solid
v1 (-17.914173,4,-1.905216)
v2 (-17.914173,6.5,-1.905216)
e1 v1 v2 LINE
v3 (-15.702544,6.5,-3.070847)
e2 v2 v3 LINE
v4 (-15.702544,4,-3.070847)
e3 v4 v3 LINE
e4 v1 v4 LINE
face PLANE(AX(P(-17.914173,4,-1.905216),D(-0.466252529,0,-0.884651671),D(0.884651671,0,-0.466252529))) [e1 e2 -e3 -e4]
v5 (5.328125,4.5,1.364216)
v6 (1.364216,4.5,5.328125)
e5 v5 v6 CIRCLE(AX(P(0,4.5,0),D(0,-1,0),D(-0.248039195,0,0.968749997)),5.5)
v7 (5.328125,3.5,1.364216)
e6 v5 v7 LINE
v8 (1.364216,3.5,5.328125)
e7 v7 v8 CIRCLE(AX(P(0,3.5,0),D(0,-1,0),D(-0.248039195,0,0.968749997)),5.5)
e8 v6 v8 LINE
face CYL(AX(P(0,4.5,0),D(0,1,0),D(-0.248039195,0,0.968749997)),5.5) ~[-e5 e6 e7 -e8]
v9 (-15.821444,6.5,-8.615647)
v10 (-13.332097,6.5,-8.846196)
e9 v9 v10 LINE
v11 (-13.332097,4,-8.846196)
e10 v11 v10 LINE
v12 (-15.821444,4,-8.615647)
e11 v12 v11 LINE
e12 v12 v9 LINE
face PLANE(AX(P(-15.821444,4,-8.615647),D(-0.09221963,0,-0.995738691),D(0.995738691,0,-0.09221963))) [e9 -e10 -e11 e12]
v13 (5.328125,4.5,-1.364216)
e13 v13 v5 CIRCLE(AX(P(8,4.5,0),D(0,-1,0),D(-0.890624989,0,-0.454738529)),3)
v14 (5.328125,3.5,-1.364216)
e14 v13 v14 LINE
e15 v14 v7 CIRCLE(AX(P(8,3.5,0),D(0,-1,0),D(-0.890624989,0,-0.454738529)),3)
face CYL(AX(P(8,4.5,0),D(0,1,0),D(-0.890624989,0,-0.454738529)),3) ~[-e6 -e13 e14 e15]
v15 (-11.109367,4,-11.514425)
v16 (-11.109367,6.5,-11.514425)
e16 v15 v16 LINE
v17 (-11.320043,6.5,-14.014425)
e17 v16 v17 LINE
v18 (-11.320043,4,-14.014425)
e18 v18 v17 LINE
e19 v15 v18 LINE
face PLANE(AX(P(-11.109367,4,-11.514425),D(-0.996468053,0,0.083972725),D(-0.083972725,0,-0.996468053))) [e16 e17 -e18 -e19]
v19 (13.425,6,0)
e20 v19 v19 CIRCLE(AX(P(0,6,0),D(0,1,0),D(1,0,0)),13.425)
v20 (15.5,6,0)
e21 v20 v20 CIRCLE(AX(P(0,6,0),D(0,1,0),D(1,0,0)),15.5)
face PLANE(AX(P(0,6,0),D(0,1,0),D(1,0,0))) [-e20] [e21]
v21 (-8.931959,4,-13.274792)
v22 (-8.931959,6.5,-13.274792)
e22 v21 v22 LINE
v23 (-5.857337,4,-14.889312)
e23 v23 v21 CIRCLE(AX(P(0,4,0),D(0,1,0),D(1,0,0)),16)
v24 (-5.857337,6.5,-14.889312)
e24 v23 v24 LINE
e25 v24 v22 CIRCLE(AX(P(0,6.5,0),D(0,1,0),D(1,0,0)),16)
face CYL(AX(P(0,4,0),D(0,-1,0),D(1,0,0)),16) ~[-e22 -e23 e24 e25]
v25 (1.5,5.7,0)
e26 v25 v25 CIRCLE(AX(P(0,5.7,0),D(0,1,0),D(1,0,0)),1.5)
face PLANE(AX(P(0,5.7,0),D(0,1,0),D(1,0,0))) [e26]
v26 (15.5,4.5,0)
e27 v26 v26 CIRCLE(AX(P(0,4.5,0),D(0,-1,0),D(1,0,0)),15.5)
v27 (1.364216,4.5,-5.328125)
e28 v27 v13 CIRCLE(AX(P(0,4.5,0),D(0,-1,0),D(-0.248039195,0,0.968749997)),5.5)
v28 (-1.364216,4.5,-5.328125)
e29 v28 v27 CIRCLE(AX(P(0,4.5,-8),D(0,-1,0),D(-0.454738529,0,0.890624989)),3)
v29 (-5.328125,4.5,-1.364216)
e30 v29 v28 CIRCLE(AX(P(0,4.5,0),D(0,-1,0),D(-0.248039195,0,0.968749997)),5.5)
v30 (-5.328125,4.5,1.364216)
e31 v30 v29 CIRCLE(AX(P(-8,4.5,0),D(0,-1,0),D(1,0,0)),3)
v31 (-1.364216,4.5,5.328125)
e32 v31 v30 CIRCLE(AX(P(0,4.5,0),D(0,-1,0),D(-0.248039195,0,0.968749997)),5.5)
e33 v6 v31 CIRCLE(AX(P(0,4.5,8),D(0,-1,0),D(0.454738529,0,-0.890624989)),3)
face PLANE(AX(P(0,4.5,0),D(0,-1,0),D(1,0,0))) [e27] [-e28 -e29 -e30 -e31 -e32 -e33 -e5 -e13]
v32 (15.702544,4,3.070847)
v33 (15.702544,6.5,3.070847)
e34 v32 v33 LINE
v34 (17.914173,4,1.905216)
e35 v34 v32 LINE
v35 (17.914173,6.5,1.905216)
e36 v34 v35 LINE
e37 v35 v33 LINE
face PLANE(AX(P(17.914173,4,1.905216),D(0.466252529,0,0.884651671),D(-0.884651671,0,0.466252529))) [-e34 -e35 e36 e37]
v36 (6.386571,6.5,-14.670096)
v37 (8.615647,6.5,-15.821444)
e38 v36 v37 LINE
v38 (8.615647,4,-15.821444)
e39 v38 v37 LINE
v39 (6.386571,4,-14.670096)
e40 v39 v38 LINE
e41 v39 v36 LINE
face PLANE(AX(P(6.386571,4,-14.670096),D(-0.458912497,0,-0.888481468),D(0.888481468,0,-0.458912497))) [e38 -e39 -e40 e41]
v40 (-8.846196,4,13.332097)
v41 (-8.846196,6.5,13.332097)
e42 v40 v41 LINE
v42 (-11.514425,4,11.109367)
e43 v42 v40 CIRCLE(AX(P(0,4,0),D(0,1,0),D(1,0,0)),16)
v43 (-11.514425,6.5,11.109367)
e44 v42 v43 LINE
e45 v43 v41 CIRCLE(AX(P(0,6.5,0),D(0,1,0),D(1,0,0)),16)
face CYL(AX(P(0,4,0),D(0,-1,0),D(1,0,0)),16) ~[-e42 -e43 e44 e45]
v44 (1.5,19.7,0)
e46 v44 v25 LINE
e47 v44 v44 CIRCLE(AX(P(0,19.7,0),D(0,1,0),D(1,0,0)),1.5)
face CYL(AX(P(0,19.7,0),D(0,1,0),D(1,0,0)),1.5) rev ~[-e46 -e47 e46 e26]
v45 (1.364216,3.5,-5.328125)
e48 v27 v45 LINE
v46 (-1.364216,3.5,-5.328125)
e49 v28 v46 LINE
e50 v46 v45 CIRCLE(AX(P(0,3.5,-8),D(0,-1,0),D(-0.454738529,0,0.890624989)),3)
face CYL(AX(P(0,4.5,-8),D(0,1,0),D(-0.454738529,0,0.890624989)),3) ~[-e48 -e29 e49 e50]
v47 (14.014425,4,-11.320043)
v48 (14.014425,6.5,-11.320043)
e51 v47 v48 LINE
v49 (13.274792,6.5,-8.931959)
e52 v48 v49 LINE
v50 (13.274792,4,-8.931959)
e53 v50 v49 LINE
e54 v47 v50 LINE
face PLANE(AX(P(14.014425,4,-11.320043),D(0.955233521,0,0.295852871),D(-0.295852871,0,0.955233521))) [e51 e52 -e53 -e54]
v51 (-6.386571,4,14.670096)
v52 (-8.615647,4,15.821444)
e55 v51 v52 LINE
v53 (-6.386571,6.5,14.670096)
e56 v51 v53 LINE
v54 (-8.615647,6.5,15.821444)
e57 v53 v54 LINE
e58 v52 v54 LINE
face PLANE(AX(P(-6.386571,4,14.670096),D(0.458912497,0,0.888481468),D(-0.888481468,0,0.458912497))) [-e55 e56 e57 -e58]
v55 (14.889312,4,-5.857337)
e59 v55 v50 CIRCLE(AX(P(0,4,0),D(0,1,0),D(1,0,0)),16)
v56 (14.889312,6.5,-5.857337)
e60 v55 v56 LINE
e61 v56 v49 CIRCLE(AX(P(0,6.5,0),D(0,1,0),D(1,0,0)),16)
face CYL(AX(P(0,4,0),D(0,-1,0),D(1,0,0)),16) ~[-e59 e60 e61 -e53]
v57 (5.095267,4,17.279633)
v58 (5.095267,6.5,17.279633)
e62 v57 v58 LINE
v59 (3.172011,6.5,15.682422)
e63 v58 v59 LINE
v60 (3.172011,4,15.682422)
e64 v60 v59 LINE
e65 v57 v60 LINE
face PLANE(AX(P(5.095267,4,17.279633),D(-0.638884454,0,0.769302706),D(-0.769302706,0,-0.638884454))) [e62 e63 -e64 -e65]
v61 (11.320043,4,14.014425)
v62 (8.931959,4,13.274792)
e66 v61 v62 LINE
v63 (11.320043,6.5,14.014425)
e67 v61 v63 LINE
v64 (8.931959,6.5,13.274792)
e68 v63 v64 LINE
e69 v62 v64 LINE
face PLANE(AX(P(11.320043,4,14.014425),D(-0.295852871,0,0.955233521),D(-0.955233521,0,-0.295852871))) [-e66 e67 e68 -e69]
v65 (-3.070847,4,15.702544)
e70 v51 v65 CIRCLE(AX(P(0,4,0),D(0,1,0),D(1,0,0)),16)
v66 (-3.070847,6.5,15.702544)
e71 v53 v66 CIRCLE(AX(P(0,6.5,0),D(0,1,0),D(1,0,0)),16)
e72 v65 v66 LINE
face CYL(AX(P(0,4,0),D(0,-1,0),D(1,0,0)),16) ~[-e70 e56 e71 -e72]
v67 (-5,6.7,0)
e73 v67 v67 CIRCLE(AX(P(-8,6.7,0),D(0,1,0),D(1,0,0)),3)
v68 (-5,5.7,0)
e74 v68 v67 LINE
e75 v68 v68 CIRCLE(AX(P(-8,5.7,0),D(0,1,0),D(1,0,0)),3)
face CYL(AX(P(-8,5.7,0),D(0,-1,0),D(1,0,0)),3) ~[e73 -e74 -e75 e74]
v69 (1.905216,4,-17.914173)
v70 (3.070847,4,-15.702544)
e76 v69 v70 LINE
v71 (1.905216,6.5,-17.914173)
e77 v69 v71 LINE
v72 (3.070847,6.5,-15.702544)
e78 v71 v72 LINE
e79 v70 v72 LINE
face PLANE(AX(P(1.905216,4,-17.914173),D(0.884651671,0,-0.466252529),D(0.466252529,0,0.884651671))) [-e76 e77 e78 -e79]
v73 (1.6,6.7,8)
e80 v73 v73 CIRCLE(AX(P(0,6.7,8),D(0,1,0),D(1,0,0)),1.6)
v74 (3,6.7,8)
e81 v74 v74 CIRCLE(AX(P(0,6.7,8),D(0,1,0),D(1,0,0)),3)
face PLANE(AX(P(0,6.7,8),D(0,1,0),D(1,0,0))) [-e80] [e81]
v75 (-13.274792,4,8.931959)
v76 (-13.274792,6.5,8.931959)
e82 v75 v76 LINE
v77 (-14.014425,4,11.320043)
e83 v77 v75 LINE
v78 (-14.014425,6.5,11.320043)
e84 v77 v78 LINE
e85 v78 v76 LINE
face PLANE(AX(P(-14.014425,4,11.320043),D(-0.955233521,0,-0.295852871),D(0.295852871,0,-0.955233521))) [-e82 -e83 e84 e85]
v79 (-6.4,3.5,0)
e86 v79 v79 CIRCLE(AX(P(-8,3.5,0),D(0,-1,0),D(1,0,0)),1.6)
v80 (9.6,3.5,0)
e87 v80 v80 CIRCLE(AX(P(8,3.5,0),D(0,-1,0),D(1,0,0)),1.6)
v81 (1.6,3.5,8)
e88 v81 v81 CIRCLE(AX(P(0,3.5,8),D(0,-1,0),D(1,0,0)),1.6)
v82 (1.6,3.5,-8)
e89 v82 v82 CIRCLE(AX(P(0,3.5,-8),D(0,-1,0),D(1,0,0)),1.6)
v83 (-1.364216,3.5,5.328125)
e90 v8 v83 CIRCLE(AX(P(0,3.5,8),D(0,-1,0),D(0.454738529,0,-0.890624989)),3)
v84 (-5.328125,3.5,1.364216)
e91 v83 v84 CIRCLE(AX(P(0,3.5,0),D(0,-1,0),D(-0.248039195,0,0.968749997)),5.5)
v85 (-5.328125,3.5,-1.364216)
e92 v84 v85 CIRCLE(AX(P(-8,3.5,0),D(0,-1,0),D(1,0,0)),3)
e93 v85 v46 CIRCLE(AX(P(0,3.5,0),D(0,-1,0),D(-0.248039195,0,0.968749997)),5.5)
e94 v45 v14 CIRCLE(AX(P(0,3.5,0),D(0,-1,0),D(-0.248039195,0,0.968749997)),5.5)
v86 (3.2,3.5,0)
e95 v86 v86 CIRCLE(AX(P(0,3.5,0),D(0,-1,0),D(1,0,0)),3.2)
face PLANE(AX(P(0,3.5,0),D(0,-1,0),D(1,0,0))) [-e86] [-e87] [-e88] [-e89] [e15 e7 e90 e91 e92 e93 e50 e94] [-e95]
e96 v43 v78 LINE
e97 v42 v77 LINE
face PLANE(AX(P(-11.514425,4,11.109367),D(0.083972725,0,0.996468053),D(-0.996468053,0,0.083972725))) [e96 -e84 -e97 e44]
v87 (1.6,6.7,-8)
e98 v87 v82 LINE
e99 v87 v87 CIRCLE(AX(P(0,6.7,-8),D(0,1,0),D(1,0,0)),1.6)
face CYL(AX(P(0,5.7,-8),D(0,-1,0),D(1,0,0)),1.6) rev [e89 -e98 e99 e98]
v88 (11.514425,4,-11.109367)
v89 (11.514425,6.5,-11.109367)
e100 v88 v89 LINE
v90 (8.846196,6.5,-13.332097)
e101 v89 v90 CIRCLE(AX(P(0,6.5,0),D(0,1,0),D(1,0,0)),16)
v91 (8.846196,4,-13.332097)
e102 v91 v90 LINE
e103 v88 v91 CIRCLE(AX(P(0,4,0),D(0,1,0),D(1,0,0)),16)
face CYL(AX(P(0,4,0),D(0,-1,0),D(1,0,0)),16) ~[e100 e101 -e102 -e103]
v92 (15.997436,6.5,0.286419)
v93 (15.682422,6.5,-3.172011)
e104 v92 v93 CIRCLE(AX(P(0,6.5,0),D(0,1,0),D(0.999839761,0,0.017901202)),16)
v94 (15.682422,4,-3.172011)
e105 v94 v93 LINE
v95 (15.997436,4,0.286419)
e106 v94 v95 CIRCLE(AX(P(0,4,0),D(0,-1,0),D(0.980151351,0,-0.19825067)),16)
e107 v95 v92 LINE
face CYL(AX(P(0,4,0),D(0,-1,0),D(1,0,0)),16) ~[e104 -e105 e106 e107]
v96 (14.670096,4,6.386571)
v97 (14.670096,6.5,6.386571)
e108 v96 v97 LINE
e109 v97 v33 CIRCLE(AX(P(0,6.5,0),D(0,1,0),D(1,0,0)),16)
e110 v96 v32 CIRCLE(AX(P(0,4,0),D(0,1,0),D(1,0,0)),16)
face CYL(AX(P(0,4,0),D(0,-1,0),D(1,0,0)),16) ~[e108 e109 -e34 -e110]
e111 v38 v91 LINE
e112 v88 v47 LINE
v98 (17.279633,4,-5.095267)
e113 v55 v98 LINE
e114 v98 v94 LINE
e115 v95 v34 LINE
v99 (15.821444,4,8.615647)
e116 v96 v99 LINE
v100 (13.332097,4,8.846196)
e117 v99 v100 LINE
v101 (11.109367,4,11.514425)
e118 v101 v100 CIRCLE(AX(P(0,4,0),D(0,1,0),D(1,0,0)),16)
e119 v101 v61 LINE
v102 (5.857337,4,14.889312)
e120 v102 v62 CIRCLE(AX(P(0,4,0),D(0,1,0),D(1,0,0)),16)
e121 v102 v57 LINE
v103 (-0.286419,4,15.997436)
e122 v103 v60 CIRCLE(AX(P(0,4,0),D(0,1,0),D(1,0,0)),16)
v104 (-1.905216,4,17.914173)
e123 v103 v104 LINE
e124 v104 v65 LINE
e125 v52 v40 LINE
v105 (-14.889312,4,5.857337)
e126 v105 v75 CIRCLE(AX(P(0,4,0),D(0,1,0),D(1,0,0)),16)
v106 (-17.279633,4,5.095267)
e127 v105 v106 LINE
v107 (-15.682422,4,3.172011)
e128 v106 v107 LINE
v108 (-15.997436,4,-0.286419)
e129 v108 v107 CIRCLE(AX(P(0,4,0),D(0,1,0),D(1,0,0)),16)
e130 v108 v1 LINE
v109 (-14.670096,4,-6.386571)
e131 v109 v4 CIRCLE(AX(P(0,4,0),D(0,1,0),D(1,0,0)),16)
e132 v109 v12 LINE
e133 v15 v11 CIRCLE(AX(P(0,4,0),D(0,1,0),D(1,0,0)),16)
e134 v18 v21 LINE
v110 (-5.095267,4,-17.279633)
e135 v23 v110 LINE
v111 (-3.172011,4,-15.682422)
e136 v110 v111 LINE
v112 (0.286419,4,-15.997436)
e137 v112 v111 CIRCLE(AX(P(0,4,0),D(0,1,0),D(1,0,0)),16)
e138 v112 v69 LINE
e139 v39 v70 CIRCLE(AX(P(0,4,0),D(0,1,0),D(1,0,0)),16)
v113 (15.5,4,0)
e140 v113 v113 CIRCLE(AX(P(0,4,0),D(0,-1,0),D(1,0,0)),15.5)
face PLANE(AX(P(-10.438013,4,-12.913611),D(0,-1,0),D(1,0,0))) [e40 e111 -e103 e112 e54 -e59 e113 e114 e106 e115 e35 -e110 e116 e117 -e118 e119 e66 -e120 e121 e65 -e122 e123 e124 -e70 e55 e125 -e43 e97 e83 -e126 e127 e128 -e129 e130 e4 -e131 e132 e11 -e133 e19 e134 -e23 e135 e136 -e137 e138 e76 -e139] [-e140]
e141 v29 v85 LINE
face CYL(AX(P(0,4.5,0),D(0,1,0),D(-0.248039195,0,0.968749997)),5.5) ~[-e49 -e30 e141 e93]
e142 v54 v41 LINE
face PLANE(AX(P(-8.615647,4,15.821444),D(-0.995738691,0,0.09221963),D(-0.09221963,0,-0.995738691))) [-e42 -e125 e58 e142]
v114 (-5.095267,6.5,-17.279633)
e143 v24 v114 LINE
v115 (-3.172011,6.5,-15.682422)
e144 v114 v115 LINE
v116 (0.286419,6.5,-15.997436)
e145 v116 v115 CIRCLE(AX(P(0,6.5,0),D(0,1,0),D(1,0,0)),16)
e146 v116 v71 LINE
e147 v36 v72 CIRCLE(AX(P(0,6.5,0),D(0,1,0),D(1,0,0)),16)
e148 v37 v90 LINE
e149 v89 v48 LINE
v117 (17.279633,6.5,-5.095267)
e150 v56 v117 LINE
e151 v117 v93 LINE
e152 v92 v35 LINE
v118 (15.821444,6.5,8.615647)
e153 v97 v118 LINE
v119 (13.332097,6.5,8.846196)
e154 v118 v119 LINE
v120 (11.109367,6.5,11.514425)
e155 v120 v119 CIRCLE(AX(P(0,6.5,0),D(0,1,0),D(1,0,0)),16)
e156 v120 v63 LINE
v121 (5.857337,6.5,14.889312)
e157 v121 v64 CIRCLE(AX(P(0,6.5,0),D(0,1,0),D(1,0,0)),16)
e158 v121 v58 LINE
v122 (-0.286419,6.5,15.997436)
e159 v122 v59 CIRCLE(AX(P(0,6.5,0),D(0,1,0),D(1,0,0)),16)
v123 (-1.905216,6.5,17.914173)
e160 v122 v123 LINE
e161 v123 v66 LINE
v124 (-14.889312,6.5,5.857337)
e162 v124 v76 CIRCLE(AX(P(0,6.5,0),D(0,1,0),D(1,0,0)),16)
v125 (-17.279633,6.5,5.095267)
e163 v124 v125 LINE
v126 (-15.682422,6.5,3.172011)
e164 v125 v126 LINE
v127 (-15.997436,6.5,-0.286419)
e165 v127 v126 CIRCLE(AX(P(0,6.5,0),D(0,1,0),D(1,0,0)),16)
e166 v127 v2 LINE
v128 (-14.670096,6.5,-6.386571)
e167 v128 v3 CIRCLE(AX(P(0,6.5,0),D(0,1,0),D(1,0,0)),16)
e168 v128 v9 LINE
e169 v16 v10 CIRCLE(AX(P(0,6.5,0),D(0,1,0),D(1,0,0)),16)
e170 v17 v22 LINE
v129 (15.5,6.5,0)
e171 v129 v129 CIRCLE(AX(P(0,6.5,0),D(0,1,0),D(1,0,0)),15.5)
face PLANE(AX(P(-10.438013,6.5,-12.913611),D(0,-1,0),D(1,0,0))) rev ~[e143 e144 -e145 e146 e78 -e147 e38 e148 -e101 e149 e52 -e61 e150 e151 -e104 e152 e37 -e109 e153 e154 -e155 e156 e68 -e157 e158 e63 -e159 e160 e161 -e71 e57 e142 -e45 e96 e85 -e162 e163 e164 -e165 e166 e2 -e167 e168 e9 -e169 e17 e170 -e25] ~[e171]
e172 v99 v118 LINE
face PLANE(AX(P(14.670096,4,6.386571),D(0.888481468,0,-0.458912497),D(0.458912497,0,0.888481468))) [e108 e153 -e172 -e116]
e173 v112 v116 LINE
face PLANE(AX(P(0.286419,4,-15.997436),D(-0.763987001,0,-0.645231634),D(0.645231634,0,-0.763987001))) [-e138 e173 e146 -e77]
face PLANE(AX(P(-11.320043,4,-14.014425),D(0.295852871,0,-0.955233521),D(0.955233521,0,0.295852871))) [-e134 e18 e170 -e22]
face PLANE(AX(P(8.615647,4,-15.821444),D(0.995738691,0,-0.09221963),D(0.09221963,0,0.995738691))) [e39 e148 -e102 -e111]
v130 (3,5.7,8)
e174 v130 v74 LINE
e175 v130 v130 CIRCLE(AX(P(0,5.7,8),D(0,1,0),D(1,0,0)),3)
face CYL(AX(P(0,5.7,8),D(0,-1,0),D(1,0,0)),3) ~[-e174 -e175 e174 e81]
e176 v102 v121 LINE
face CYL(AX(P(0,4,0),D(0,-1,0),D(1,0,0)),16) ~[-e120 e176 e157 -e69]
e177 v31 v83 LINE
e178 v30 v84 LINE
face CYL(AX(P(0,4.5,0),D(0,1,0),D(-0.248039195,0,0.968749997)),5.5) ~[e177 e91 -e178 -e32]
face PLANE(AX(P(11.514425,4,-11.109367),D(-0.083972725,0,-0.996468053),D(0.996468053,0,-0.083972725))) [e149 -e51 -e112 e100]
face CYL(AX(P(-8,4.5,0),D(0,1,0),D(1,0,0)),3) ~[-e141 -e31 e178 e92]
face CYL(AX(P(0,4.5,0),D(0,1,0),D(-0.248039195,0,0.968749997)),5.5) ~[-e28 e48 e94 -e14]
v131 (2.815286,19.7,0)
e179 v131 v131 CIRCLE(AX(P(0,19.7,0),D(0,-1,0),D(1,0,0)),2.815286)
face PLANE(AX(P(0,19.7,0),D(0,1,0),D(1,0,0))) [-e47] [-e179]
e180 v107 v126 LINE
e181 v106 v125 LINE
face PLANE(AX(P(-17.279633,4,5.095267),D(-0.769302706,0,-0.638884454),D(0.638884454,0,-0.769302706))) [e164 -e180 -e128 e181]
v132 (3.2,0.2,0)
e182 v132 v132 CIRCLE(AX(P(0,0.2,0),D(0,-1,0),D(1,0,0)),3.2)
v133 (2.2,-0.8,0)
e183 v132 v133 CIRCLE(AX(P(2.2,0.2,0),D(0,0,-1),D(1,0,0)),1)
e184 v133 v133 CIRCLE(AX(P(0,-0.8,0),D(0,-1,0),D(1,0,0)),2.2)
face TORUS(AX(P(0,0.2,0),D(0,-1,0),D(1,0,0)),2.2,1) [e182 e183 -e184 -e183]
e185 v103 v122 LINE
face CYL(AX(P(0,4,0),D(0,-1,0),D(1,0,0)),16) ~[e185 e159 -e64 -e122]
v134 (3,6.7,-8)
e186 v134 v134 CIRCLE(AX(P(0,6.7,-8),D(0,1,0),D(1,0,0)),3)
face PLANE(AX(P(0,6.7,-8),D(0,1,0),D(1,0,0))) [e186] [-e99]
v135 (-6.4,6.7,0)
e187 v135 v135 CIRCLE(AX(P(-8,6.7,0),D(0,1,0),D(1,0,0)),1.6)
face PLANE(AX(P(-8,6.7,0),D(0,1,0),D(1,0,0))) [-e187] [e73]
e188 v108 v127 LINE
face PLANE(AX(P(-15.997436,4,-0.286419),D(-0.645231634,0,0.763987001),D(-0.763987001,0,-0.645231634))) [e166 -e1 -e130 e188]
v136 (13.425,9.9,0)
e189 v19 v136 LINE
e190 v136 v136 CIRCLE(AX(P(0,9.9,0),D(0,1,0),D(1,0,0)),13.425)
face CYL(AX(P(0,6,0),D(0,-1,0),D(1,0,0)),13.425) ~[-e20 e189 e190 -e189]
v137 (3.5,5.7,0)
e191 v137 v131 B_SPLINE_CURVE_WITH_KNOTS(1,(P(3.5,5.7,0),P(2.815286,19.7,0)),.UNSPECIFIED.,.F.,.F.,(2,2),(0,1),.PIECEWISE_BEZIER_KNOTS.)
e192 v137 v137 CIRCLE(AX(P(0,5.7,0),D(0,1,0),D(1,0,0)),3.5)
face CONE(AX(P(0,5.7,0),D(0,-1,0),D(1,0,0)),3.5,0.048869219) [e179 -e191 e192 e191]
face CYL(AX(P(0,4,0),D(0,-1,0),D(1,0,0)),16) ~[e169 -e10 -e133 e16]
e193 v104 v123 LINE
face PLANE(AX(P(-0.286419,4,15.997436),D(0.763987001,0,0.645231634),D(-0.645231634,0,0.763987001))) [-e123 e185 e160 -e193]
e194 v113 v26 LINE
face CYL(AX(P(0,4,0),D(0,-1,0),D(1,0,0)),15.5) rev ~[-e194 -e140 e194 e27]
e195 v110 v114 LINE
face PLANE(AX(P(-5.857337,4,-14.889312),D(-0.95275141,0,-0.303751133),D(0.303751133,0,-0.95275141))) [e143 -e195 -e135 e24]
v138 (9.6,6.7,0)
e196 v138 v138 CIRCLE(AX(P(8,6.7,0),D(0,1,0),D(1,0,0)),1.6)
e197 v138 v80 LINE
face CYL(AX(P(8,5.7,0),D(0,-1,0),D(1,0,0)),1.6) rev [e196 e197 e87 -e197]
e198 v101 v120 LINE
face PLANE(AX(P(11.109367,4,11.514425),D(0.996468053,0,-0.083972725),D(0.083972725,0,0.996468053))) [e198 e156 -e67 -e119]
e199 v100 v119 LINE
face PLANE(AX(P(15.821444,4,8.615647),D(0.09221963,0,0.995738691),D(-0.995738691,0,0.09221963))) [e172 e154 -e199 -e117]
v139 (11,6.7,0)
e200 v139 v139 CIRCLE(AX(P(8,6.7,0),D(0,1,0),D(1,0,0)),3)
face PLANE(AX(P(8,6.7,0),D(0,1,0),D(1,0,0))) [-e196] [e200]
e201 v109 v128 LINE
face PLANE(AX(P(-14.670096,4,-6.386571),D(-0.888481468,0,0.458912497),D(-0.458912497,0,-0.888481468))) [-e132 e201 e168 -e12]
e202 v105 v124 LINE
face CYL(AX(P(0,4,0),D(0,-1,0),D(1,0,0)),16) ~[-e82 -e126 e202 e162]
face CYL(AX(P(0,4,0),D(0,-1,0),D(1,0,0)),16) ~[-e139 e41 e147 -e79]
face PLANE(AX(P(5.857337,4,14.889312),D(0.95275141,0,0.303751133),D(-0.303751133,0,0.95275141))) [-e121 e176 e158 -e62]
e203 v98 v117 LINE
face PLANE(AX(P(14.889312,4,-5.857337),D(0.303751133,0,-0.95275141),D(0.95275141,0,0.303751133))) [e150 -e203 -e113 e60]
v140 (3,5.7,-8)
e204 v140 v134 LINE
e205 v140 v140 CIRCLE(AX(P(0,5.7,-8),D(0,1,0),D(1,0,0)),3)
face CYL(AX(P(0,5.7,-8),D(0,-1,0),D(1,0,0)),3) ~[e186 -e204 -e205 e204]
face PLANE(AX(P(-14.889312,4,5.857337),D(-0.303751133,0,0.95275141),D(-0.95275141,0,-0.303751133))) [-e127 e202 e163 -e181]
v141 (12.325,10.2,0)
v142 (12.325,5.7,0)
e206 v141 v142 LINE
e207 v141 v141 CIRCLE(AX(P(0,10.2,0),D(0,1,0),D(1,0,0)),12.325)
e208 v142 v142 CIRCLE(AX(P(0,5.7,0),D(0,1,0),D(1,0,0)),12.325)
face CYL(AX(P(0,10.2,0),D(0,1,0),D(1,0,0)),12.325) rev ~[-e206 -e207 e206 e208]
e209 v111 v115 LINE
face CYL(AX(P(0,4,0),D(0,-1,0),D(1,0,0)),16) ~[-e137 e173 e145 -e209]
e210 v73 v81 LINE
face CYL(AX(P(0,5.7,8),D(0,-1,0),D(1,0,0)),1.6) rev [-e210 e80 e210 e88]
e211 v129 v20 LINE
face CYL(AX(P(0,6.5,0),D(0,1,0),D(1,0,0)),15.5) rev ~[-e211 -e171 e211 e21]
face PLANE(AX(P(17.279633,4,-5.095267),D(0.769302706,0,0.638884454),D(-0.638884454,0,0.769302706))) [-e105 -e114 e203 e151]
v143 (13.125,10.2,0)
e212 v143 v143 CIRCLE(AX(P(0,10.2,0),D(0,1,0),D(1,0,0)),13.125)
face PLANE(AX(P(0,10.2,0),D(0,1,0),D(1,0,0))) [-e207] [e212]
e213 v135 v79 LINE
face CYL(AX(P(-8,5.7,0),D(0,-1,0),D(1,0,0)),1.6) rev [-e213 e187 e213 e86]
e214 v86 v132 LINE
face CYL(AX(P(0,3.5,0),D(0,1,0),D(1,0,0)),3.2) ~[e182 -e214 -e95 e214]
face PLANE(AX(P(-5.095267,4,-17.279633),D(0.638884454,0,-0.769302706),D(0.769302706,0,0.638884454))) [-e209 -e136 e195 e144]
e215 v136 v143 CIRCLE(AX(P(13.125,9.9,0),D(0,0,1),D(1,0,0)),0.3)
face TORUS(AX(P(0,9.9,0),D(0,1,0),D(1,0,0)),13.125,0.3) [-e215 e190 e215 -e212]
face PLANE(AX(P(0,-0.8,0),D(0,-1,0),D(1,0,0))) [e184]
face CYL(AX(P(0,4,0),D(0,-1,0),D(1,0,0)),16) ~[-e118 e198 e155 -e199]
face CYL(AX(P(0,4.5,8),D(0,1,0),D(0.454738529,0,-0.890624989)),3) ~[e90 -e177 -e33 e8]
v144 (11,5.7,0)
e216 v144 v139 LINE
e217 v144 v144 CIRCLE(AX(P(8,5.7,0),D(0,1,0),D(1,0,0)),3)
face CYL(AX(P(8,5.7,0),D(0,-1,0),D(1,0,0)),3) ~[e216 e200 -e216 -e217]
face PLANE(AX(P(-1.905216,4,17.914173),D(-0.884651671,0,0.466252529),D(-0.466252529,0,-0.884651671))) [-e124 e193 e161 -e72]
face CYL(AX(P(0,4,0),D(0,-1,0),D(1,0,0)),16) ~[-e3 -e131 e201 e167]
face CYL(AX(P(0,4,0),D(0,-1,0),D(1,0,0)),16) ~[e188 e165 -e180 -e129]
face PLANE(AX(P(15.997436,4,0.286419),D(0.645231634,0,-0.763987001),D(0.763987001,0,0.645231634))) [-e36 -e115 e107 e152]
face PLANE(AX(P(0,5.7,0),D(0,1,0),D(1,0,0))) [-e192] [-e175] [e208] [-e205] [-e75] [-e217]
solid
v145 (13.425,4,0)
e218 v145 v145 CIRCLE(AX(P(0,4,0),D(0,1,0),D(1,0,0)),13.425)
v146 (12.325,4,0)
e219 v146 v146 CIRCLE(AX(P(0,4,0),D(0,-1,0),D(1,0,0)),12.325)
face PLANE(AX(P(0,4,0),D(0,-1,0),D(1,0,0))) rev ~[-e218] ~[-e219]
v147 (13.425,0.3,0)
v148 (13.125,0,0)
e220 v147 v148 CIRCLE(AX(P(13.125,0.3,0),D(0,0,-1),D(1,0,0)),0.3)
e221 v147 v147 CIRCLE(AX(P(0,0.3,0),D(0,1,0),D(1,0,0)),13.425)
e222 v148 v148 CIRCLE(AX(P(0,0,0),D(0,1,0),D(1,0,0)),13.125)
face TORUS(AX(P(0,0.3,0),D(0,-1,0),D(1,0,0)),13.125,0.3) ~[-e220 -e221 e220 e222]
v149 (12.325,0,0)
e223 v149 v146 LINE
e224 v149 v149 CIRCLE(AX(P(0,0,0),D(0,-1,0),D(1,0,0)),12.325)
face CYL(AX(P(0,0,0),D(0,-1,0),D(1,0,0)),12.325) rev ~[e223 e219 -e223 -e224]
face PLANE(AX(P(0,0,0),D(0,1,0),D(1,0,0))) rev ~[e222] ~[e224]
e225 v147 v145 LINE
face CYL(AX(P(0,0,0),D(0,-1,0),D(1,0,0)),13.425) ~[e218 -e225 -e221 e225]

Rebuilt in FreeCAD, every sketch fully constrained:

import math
import FreeCAD as App
import Part
import Sketcher
from FreeCAD import Vector
Q = App.Units.Quantity


def edges_at(feature, points):
    """Names of the edges that pass closest to the given points."""
    edges = feature.Shape.Edges
    near = lambda p: min(range(len(edges)), key=lambda i: edges[i].distToShape(Part.Vertex(*p))[0])
    return sorted({f"Edge{near(p) + 1}" for p in points})

doc = App.newDocument("Part")
params = doc.addObject("Spreadsheet::Sheet", "Params")
for row, (alias, value) in enumerate([
    ("sketch1_diameter", "26.85 mm"),
    ("pad1_length", "4 mm"),
    ("sketch2_diameter", "32 mm"),
    ("pad2_length", "2.5 mm"),
    ("sketch3_diameter", "24.65 mm"),
    ("pocket1_length", "4 mm"),
    ("sketch4_diameter", "31 mm"),
    ("pocket2_length", "0.5 mm"),
    ("sketch5_diameter", "31 mm"),
    ("pocket3_length", "0.5 mm"),
    ("sketch6_radius", "3 mm"),
    ("sketch6_radius2", "5.5 mm"),
    ("pad3_length", "1 mm"),
    ("sketch7_diameter", "6.4 mm"),
    ("pad4_length", "4.3 mm"),
    ("fillet_radius", "1 mm"),
    ("sketch8_diameter", "26.85 mm"),
    ("pad5_length", "4.2 mm"),
    ("sketch9_diameter", "24.65 mm"),
    ("pocket4_length", "4.5 mm"),
    ("sketch10_diameter", "7 mm"),
    ("pad6_length", "14 mm"),
    ("pad6_taper", "-2.8 deg"),
    ("sketch11_diameter", "3 mm"),
    ("pocket5_length", "14 mm"),
    ("fillet2_radius", "0.3 mm"),
    ("fillet3_radius", "0.3 mm"),
    ("sketch12_diameter", "3.2 mm"),
    ("pocket6_length", "5 mm"),
    ("sketch13_diameter", "6 mm"),
    ("sketch13_diameter2", "3.2 mm"),
    ("pad7_length", "1 mm"),
    ("sketch14_length", "2.5 mm"),
    ("sketch14_length2", "2.8 mm"),
    ("pad8_length", "2.5 mm"),
], start=1):
    params.set(f"A{row}", alias)
    params.set(f"B{row}", "=" + value)
    params.setAlias(f"B{row}", alias)

body = doc.addObject("PartDesign::Body", "Body")
body.AllowCompound = True

sketch1 = doc.addObject("Sketcher::SketchObject", "Sketch")
body.addObject(sketch1)
sketch1.AttachmentSupport = (doc.XZ_Plane, [""])
sketch1.MapMode = "FlatFace"
sketch1.addGeometry(Part.Circle(Vector(0, 0, 0), Vector(0, 0, 1), 13), False)
sketch1.addConstraint([
    Sketcher.Constraint("Coincident", 0, 3, -1, 1),
    Sketcher.Constraint("Diameter", 0, Q("26.85 mm")),
])
sketch1.setExpression("Constraints[1]", "Params.sketch1_diameter")
pad1 = doc.addObject("PartDesign::Pad", "Pad")
body.addObject(pad1)
pad1.Profile = sketch1
pad1.setExpression("Length", "Params.pad1_length")
pad1.Reversed = True

sketch2 = doc.addObject("Sketcher::SketchObject", "Sketch001")
body.addObject(sketch2)
sketch2.AttachmentSupport = (doc.XZ_Plane, [""])
sketch2.MapMode = "FlatFace"
sketch2.AttachmentOffset = App.Placement(Vector(0, 0, -4), App.Rotation())
sketch2.addGeometry(Part.Circle(Vector(0, 0, 0), Vector(0, 0, 1), 16), False)
sketch2.addConstraint([
    Sketcher.Constraint("Coincident", 0, 3, -1, 1),
    Sketcher.Constraint("Diameter", 0, Q("32 mm")),
])
sketch2.setExpression("Constraints[1]", "Params.sketch2_diameter")
pad2 = doc.addObject("PartDesign::Pad", "Pad001")
body.addObject(pad2)
pad2.Profile = sketch2
pad2.setExpression("Length", "Params.pad2_length")
pad2.Reversed = True

sketch3 = doc.addObject("Sketcher::SketchObject", "Sketch002")
body.addObject(sketch3)
sketch3.AttachmentSupport = (doc.XZ_Plane, [""])
sketch3.MapMode = "FlatFace"
sketch3.addGeometry(Part.Circle(Vector(0, 0, 0), Vector(0, 0, 1), 12), False)
sketch3.addConstraint([
    Sketcher.Constraint("Coincident", 0, 3, -1, 1),
    Sketcher.Constraint("Diameter", 0, Q("24.65 mm")),
])
sketch3.setExpression("Constraints[1]", "Params.sketch3_diameter")
pocket1 = doc.addObject("PartDesign::Pocket", "Pocket")
body.addObject(pocket1)
pocket1.Profile = sketch3
pocket1.setExpression("Length", "Params.pocket1_length")

sketch4 = doc.addObject("Sketcher::SketchObject", "Sketch003")
body.addObject(sketch4)
sketch4.AttachmentSupport = (doc.XZ_Plane, [""])
sketch4.MapMode = "FlatFace"
sketch4.AttachmentOffset = App.Placement(Vector(0, 0, -6.5), App.Rotation())
sketch4.addGeometry(Part.Circle(Vector(0, 0, 0), Vector(0, 0, 1), 16), False)
sketch4.addConstraint([
    Sketcher.Constraint("Coincident", 0, 3, -1, 1),
    Sketcher.Constraint("Diameter", 0, Q("31 mm")),
])
sketch4.setExpression("Constraints[1]", "Params.sketch4_diameter")
pocket2 = doc.addObject("PartDesign::Pocket", "Pocket001")
body.addObject(pocket2)
pocket2.Profile = sketch4
pocket2.setExpression("Length", "Params.pocket2_length")
pocket2.Reversed = True

sketch5 = doc.addObject("Sketcher::SketchObject", "Sketch004")
body.addObject(sketch5)
sketch5.AttachmentSupport = (doc.XZ_Plane, [""])
sketch5.MapMode = "FlatFace"
sketch5.AttachmentOffset = App.Placement(Vector(0, 0, -4), App.Rotation())
sketch5.addGeometry(Part.Circle(Vector(0, 0, 0), Vector(0, 0, 1), 16), False)
sketch5.addConstraint([
    Sketcher.Constraint("Coincident", 0, 3, -1, 1),
    Sketcher.Constraint("Diameter", 0, Q("31 mm")),
])
sketch5.setExpression("Constraints[1]", "Params.sketch5_diameter")
pocket3 = doc.addObject("PartDesign::Pocket", "Pocket002")
body.addObject(pocket3)
pocket3.Profile = sketch5
pocket3.setExpression("Length", "Params.pocket3_length")

sketch6 = doc.addObject("Sketcher::SketchObject", "Sketch005")
body.addObject(sketch6)
sketch6.AttachmentSupport = (doc.XZ_Plane, [""])
sketch6.MapMode = "FlatFace"
sketch6.AttachmentOffset = App.Placement(Vector(0, 0, -4.5), App.Rotation())
sketch6.addGeometry([
    Part.ArcOfCircle(Part.Circle(Vector(8, 0, 0), Vector(0, 0, 1), 3), math.radians(-153), math.radians(153)),
    Part.ArcOfCircle(Part.Circle(Vector(0, 0, 0), Vector(0, 0, 1), 5.5), math.radians(14), math.radians(76)),
    Part.ArcOfCircle(Part.Circle(Vector(0, 8, 0), Vector(0, 0, 1), 3), math.radians(-63), math.radians(243)),
    Part.ArcOfCircle(Part.Circle(Vector(0, 0, 0), Vector(0, 0, 1), 5.5), math.radians(104), math.radians(166)),
    Part.ArcOfCircle(Part.Circle(Vector(-8, 0, 0), Vector(0, 0, 1), 3), math.radians(27), math.radians(333)),
    Part.ArcOfCircle(Part.Circle(Vector(0, 0, 0), Vector(0, 0, 1), 5.5), math.radians(-166), math.radians(-104)),
    Part.ArcOfCircle(Part.Circle(Vector(0, -8, 0), Vector(0, 0, 1), 3), math.radians(117), math.radians(423)),
    Part.ArcOfCircle(Part.Circle(Vector(0, 0, 0), Vector(0, 0, 1), 5.5), math.radians(-76), math.radians(-14)),
], False)
sketch6.addConstraint([
    Sketcher.Constraint("Coincident", 0, 2, 1, 1),
    Sketcher.Constraint("Coincident", 1, 2, 2, 1),
    Sketcher.Constraint("Coincident", 2, 2, 3, 1),
    Sketcher.Constraint("Coincident", 3, 2, 4, 1),
    Sketcher.Constraint("Coincident", 4, 2, 5, 1),
    Sketcher.Constraint("Coincident", 5, 2, 6, 1),
    Sketcher.Constraint("Coincident", 6, 2, 7, 1),
    Sketcher.Constraint("Coincident", 7, 2, 0, 1),
    Sketcher.Constraint("Coincident", 1, 3, -1, 1),
    Sketcher.Constraint("Coincident", 3, 3, -1, 1),
    Sketcher.Constraint("Coincident", 5, 3, -1, 1),
    Sketcher.Constraint("Coincident", 7, 3, -1, 1),
    Sketcher.Constraint("Equal", 0, 2),
    Sketcher.Constraint("Equal", 1, 3),
    Sketcher.Constraint("Equal", 2, 4),
    Sketcher.Constraint("Equal", 3, 5),
    Sketcher.Constraint("Equal", 4, 6),
    Sketcher.Constraint("Equal", 5, 7),
    Sketcher.Constraint("Symmetric", 0, 3, 4, 3, -1, 1),
    Sketcher.Constraint("Symmetric", 2, 3, 6, 3, -1, 1),
    Sketcher.Constraint("PointOnObject", 0, 3, -1),
    Sketcher.Constraint("PointOnObject", 2, 3, -2),
    Sketcher.Constraint("Radius", 0, Q("3 mm")),
    Sketcher.Constraint("Radius", 1, Q("5.5 mm")),
    Sketcher.Constraint("DistanceX", -1, 1, 0, 3, Q("8 mm")),
    Sketcher.Constraint("DistanceY", -1, 1, 2, 3, Q("8 mm")),
])
sketch6.setExpression("Constraints[22]", "Params.sketch6_radius")
sketch6.setExpression("Constraints[23]", "Params.sketch6_radius2")
pad3 = doc.addObject("PartDesign::Pad", "Pad002")
body.addObject(pad3)
pad3.Profile = sketch6
pad3.setExpression("Length", "Params.pad3_length")

sketch7 = doc.addObject("Sketcher::SketchObject", "Sketch006")
body.addObject(sketch7)
sketch7.AttachmentSupport = (doc.XZ_Plane, [""])
sketch7.MapMode = "FlatFace"
sketch7.AttachmentOffset = App.Placement(Vector(0, 0, -3.5), App.Rotation())
sketch7.addGeometry(Part.Circle(Vector(0, 0, 0), Vector(0, 0, 1), 3.2), False)
sketch7.addConstraint([
    Sketcher.Constraint("Coincident", 0, 3, -1, 1),
    Sketcher.Constraint("Diameter", 0, Q("6.4 mm")),
])
sketch7.setExpression("Constraints[1]", "Params.sketch7_diameter")
pad4 = doc.addObject("PartDesign::Pad", "Pad003")
body.addObject(pad4)
pad4.Profile = sketch7
pad4.setExpression("Length", "Params.pad4_length")
doc.recompute()

fillet = doc.addObject("PartDesign::Fillet", "Fillet")
body.addObject(fillet)
fillet.Base = (pad4, edges_at(pad4, [(-3.2, -0.8, 0)]))
fillet.setExpression("Radius", "Params.fillet_radius")

sketch8 = doc.addObject("Sketcher::SketchObject", "Sketch007")
body.addObject(sketch8)
sketch8.AttachmentSupport = (doc.XZ_Plane, [""])
sketch8.MapMode = "FlatFace"
sketch8.AttachmentOffset = App.Placement(Vector(0, 0, -6), App.Rotation())
sketch8.addGeometry(Part.Circle(Vector(0, 0, 0), Vector(0, 0, 1), 13), False)
sketch8.addConstraint([
    Sketcher.Constraint("Coincident", 0, 3, -1, 1),
    Sketcher.Constraint("Diameter", 0, Q("26.85 mm")),
])
sketch8.setExpression("Constraints[1]", "Params.sketch8_diameter")
pad5 = doc.addObject("PartDesign::Pad", "Pad004")
body.addObject(pad5)
pad5.Profile = sketch8
pad5.setExpression("Length", "Params.pad5_length")
pad5.Reversed = True

sketch9 = doc.addObject("Sketcher::SketchObject", "Sketch008")
body.addObject(sketch9)
sketch9.AttachmentSupport = (doc.XZ_Plane, [""])
sketch9.MapMode = "FlatFace"
sketch9.AttachmentOffset = App.Placement(Vector(0, 0, -10.2), App.Rotation())
sketch9.addGeometry(Part.Circle(Vector(0, 0, 0), Vector(0, 0, 1), 12), False)
sketch9.addConstraint([
    Sketcher.Constraint("Coincident", 0, 3, -1, 1),
    Sketcher.Constraint("Diameter", 0, Q("24.65 mm")),
])
sketch9.setExpression("Constraints[1]", "Params.sketch9_diameter")
pocket4 = doc.addObject("PartDesign::Pocket", "Pocket003")
body.addObject(pocket4)
pocket4.Profile = sketch9
pocket4.setExpression("Length", "Params.pocket4_length")
pocket4.Reversed = True

sketch10 = doc.addObject("Sketcher::SketchObject", "Sketch009")
body.addObject(sketch10)
sketch10.AttachmentSupport = (doc.XZ_Plane, [""])
sketch10.MapMode = "FlatFace"
sketch10.AttachmentOffset = App.Placement(Vector(0, 0, -5.7), App.Rotation())
sketch10.addGeometry(Part.Circle(Vector(0, 0, 0), Vector(0, 0, 1), 3.5), False)
sketch10.addConstraint([
    Sketcher.Constraint("Coincident", 0, 3, -1, 1),
    Sketcher.Constraint("Diameter", 0, Q("7 mm")),
])
sketch10.setExpression("Constraints[1]", "Params.sketch10_diameter")
pad6 = doc.addObject("PartDesign::Pad", "Pad005")
body.addObject(pad6)
pad6.Profile = sketch10
pad6.setExpression("Length", "Params.pad6_length")
pad6.Reversed = True
pad6.setExpression("TaperAngle", "Params.pad6_taper")

sketch11 = doc.addObject("Sketcher::SketchObject", "Sketch010")
body.addObject(sketch11)
sketch11.AttachmentSupport = (doc.XZ_Plane, [""])
sketch11.MapMode = "FlatFace"
sketch11.AttachmentOffset = App.Placement(Vector(0, 0, -19.7), App.Rotation())
sketch11.addGeometry(Part.Circle(Vector(0, 0, 0), Vector(0, 0, 1), 1.5), False)
sketch11.addConstraint([
    Sketcher.Constraint("Coincident", 0, 3, -1, 1),
    Sketcher.Constraint("Diameter", 0, Q("3 mm")),
])
sketch11.setExpression("Constraints[1]", "Params.sketch11_diameter")
pocket5 = doc.addObject("PartDesign::Pocket", "Pocket004")
body.addObject(pocket5)
pocket5.Profile = sketch11
pocket5.setExpression("Length", "Params.pocket5_length")
pocket5.Reversed = True
doc.recompute()

fillet2 = doc.addObject("PartDesign::Fillet", "Fillet001")
body.addObject(fillet2)
fillet2.Base = (pocket5, edges_at(pocket5, [(-13.425, 0, 0)]))
fillet2.setExpression("Radius", "Params.fillet2_radius")
doc.recompute()

fillet3 = doc.addObject("PartDesign::Fillet", "Fillet002")
body.addObject(fillet3)
fillet3.Base = (fillet2, edges_at(fillet2, [(-13.425, 10.2, 0)]))
fillet3.setExpression("Radius", "Params.fillet3_radius")

sketch12 = doc.addObject("Sketcher::SketchObject", "Sketch011")
body.addObject(sketch12)
sketch12.AttachmentSupport = (doc.XZ_Plane, [""])
sketch12.MapMode = "FlatFace"
sketch12.AttachmentOffset = App.Placement(Vector(0, 0, -3.5), App.Rotation())
sketch12.addGeometry([
    Part.Circle(Vector(0, -8, 0), Vector(0, 0, 1), 1.6),
    Part.Circle(Vector(-8, 0, 0), Vector(0, 0, 1), 1.6),
    Part.Circle(Vector(0, 8, 0), Vector(0, 0, 1), 1.6),
    Part.Circle(Vector(8, 0, 0), Vector(0, 0, 1), 1.6),
], False)
sketch12.addConstraint([
    Sketcher.Constraint("Equal", 0, 1),
    Sketcher.Constraint("Equal", 1, 2),
    Sketcher.Constraint("Equal", 2, 3),
    Sketcher.Constraint("Symmetric", 0, 3, 2, 3, -1, 1),
    Sketcher.Constraint("Symmetric", 1, 3, 3, 3, -1, 1),
    Sketcher.Constraint("PointOnObject", 0, 3, -2),
    Sketcher.Constraint("PointOnObject", 1, 3, -1),
    Sketcher.Constraint("Diameter", 0, Q("3.2 mm")),
    Sketcher.Constraint("DistanceY", 0, 3, -1, 1, Q("8 mm")),
    Sketcher.Constraint("DistanceX", 1, 3, -1, 1, Q("8 mm")),
])
sketch12.setExpression("Constraints[7]", "Params.sketch12_diameter")
pocket6 = doc.addObject("PartDesign::Pocket", "Pocket005")
body.addObject(pocket6)
pocket6.Profile = sketch12
pocket6.setExpression("Length", "Params.pocket6_length")

sketch13 = doc.addObject("Sketcher::SketchObject", "Sketch012")
body.addObject(sketch13)
sketch13.AttachmentSupport = (doc.XZ_Plane, [""])
sketch13.MapMode = "FlatFace"
sketch13.AttachmentOffset = App.Placement(Vector(0, 0, -5.7), App.Rotation())
sketch13.addGeometry([
    Part.Circle(Vector(8, 0, 0), Vector(0, 0, 1), 3),
    Part.Circle(Vector(8, 0, 0), Vector(0, 0, 1), 1.6),
    Part.Circle(Vector(0, 8, 0), Vector(0, 0, 1), 3),
    Part.Circle(Vector(0, 8, 0), Vector(0, 0, 1), 1.6),
    Part.Circle(Vector(-8, 0, 0), Vector(0, 0, 1), 3),
    Part.Circle(Vector(-8, 0, 0), Vector(0, 0, 1), 1.6),
    Part.Circle(Vector(0, -8, 0), Vector(0, 0, 1), 3),
    Part.Circle(Vector(0, -8, 0), Vector(0, 0, 1), 1.6),
], False)
sketch13.addConstraint([
    Sketcher.Constraint("Coincident", 1, 3, 0, 3),
    Sketcher.Constraint("Coincident", 3, 3, 2, 3),
    Sketcher.Constraint("Coincident", 5, 3, 4, 3),
    Sketcher.Constraint("Coincident", 7, 3, 6, 3),
    Sketcher.Constraint("Equal", 0, 2),
    Sketcher.Constraint("Equal", 1, 3),
    Sketcher.Constraint("Equal", 2, 4),
    Sketcher.Constraint("Equal", 3, 5),
    Sketcher.Constraint("Equal", 4, 6),
    Sketcher.Constraint("Equal", 5, 7),
    Sketcher.Constraint("Symmetric", 0, 3, 4, 3, -1, 1),
    Sketcher.Constraint("Symmetric", 2, 3, 6, 3, -1, 1),
    Sketcher.Constraint("PointOnObject", 0, 3, -1),
    Sketcher.Constraint("PointOnObject", 2, 3, -2),
    Sketcher.Constraint("Diameter", 0, Q("6 mm")),
    Sketcher.Constraint("Diameter", 1, Q("3.2 mm")),
    Sketcher.Constraint("DistanceX", -1, 1, 0, 3, Q("8 mm")),
    Sketcher.Constraint("DistanceY", -1, 1, 2, 3, Q("8 mm")),
])
sketch13.setExpression("Constraints[14]", "Params.sketch13_diameter")
sketch13.setExpression("Constraints[15]", "Params.sketch13_diameter2")
pad7 = doc.addObject("PartDesign::Pad", "Pad006")
body.addObject(pad7)
pad7.Profile = sketch13
pad7.setExpression("Length", "Params.pad7_length")
pad7.Reversed = True

sketch14 = doc.addObject("Sketcher::SketchObject", "Sketch013")
body.addObject(sketch14)
sketch14.AttachmentSupport = (doc.XZ_Plane, [""])
sketch14.MapMode = "FlatFace"
sketch14.AttachmentOffset = App.Placement(Vector(0, 0, -4), App.Rotation())
sketch14.addGeometry([
    Part.LineSegment(Vector(-11.1, -11.5, 0), Vector(-11.3, -14, 0)),
    Part.LineSegment(Vector(-11.3, -14, 0), Vector(-8.9, -13.3, 0)),
    Part.LineSegment(Vector(-8.9, -13.3, 0), Vector(-11.1, -11.5, 0)),
    Part.LineSegment(Vector(-14.7, -6.4, 0), Vector(-15.8, -8.6, 0)),
    Part.LineSegment(Vector(-15.8, -8.6, 0), Vector(-13.3, -8.8, 0)),
    Part.LineSegment(Vector(-13.3, -8.8, 0), Vector(-14.7, -6.4, 0)),
    Part.LineSegment(Vector(-16, -0.3, 0), Vector(-17.9, -1.9, 0)),
    Part.LineSegment(Vector(-17.9, -1.9, 0), Vector(-15.7, -3.1, 0)),
    Part.LineSegment(Vector(-15.7, -3.1, 0), Vector(-16, -0.3, 0)),
    Part.LineSegment(Vector(-14.9, 5.9, 0), Vector(-17.3, 5.1, 0)),
    Part.LineSegment(Vector(-17.3, 5.1, 0), Vector(-15.7, 3.2, 0)),
    Part.LineSegment(Vector(-15.7, 3.2, 0), Vector(-14.9, 5.9, 0)),
    Part.LineSegment(Vector(-11.5, 11.1, 0), Vector(-14, 11.3, 0)),
    Part.LineSegment(Vector(-14, 11.3, 0), Vector(-13.3, 8.9, 0)),
    Part.LineSegment(Vector(-13.3, 8.9, 0), Vector(-11.5, 11.1, 0)),
    Part.LineSegment(Vector(-6.4, 14.7, 0), Vector(-8.6, 15.8, 0)),
    Part.LineSegment(Vector(-8.6, 15.8, 0), Vector(-8.8, 13.3, 0)),
    Part.LineSegment(Vector(-8.8, 13.3, 0), Vector(-6.4, 14.7, 0)),
    Part.LineSegment(Vector(-0.3, 16, 0), Vector(-1.9, 17.9, 0)),
    Part.LineSegment(Vector(-1.9, 17.9, 0), Vector(-3.1, 15.7, 0)),
    Part.LineSegment(Vector(-3.1, 15.7, 0), Vector(-0.3, 16, 0)),
    Part.LineSegment(Vector(5.9, 14.9, 0), Vector(5.1, 17.3, 0)),
    Part.LineSegment(Vector(5.1, 17.3, 0), Vector(3.2, 15.7, 0)),
    Part.LineSegment(Vector(3.2, 15.7, 0), Vector(5.9, 14.9, 0)),
    Part.LineSegment(Vector(11.1, 11.5, 0), Vector(11.3, 14, 0)),
    Part.LineSegment(Vector(11.3, 14, 0), Vector(8.9, 13.3, 0)),
    Part.LineSegment(Vector(8.9, 13.3, 0), Vector(11.1, 11.5, 0)),
    Part.LineSegment(Vector(14.7, 6.4, 0), Vector(15.8, 8.6, 0)),
    Part.LineSegment(Vector(15.8, 8.6, 0), Vector(13.3, 8.8, 0)),
    Part.LineSegment(Vector(13.3, 8.8, 0), Vector(14.7, 6.4, 0)),
    Part.LineSegment(Vector(16, 0.3, 0), Vector(17.9, 1.9, 0)),
    Part.LineSegment(Vector(17.9, 1.9, 0), Vector(15.7, 3.1, 0)),
    Part.LineSegment(Vector(15.7, 3.1, 0), Vector(16, 0.3, 0)),
    Part.LineSegment(Vector(14.9, -5.9, 0), Vector(17.3, -5.1, 0)),
    Part.LineSegment(Vector(17.3, -5.1, 0), Vector(15.7, -3.2, 0)),
    Part.LineSegment(Vector(15.7, -3.2, 0), Vector(14.9, -5.9, 0)),
    Part.LineSegment(Vector(11.5, -11.1, 0), Vector(14, -11.3, 0)),
    Part.LineSegment(Vector(14, -11.3, 0), Vector(13.3, -8.9, 0)),
    Part.LineSegment(Vector(13.3, -8.9, 0), Vector(11.5, -11.1, 0)),
    Part.LineSegment(Vector(6.4, -14.7, 0), Vector(8.6, -15.8, 0)),
    Part.LineSegment(Vector(8.6, -15.8, 0), Vector(8.8, -13.3, 0)),
    Part.LineSegment(Vector(8.8, -13.3, 0), Vector(6.4, -14.7, 0)),
    Part.LineSegment(Vector(0.3, -16, 0), Vector(1.9, -17.9, 0)),
    Part.LineSegment(Vector(1.9, -17.9, 0), Vector(3.1, -15.7, 0)),
    Part.LineSegment(Vector(3.1, -15.7, 0), Vector(0.3, -16, 0)),
    Part.LineSegment(Vector(-5.9, -14.9, 0), Vector(-5.1, -17.3, 0)),
    Part.LineSegment(Vector(-5.1, -17.3, 0), Vector(-3.2, -15.7, 0)),
    Part.LineSegment(Vector(-3.2, -15.7, 0), Vector(-5.9, -14.9, 0)),
], False)
sketch14.addConstraint([
    Sketcher.Constraint("Coincident", 0, 2, 1, 1),
    Sketcher.Constraint("Coincident", 1, 2, 2, 1),
    Sketcher.Constraint("Coincident", 2, 2, 0, 1),
    Sketcher.Constraint("Coincident", 3, 2, 4, 1),
    Sketcher.Constraint("Coincident", 4, 2, 5, 1),
    Sketcher.Constraint("Coincident", 5, 2, 3, 1),
    Sketcher.Constraint("Coincident", 6, 2, 7, 1),
    Sketcher.Constraint("Coincident", 7, 2, 8, 1),
    Sketcher.Constraint("Coincident", 8, 2, 6, 1),
    Sketcher.Constraint("Coincident", 9, 2, 10, 1),
    Sketcher.Constraint("Coincident", 10, 2, 11, 1),
    Sketcher.Constraint("Coincident", 11, 2, 9, 1),
    Sketcher.Constraint("Coincident", 12, 2, 13, 1),
    Sketcher.Constraint("Coincident", 13, 2, 14, 1),
    Sketcher.Constraint("Coincident", 14, 2, 12, 1),
    Sketcher.Constraint("Coincident", 15, 2, 16, 1),
    Sketcher.Constraint("Coincident", 16, 2, 17, 1),
    Sketcher.Constraint("Coincident", 17, 2, 15, 1),
    Sketcher.Constraint("Coincident", 18, 2, 19, 1),
    Sketcher.Constraint("Coincident", 19, 2, 20, 1),
    Sketcher.Constraint("Coincident", 20, 2, 18, 1),
    Sketcher.Constraint("Coincident", 21, 2, 22, 1),
    Sketcher.Constraint("Coincident", 22, 2, 23, 1),
    Sketcher.Constraint("Coincident", 23, 2, 21, 1),
    Sketcher.Constraint("Coincident", 24, 2, 25, 1),
    Sketcher.Constraint("Coincident", 25, 2, 26, 1),
    Sketcher.Constraint("Coincident", 26, 2, 24, 1),
    Sketcher.Constraint("Coincident", 27, 2, 28, 1),
    Sketcher.Constraint("Coincident", 28, 2, 29, 1),
    Sketcher.Constraint("Coincident", 29, 2, 27, 1),
    Sketcher.Constraint("Coincident", 30, 2, 31, 1),
    Sketcher.Constraint("Coincident", 31, 2, 32, 1),
    Sketcher.Constraint("Coincident", 32, 2, 30, 1),
    Sketcher.Constraint("Coincident", 33, 2, 34, 1),
    Sketcher.Constraint("Coincident", 34, 2, 35, 1),
    Sketcher.Constraint("Coincident", 35, 2, 33, 1),
    Sketcher.Constraint("Coincident", 36, 2, 37, 1),
    Sketcher.Constraint("Coincident", 37, 2, 38, 1),
    Sketcher.Constraint("Coincident", 38, 2, 36, 1),
    Sketcher.Constraint("Coincident", 39, 2, 40, 1),
    Sketcher.Constraint("Coincident", 40, 2, 41, 1),
    Sketcher.Constraint("Coincident", 41, 2, 39, 1),
    Sketcher.Constraint("Coincident", 42, 2, 43, 1),
    Sketcher.Constraint("Coincident", 43, 2, 44, 1),
    Sketcher.Constraint("Coincident", 44, 2, 42, 1),
    Sketcher.Constraint("Coincident", 45, 2, 46, 1),
    Sketcher.Constraint("Coincident", 46, 2, 47, 1),
    Sketcher.Constraint("Coincident", 47, 2, 45, 1),
    Sketcher.Constraint("Symmetric", 0, 2, 24, 2, -1, 1),
    Sketcher.Constraint("Symmetric", 1, 2, 25, 2, -1, 1),
    Sketcher.Constraint("Symmetric", 2, 2, 26, 2, -1, 1),
    Sketcher.Constraint("Symmetric", 3, 2, 27, 2, -1, 1),
    Sketcher.Constraint("Symmetric", 4, 2, 28, 2, -1, 1),
    Sketcher.Constraint("Symmetric", 5, 2, 29, 2, -1, 1),
    Sketcher.Constraint("Symmetric", 6, 2, 30, 2, -1, 1),
    Sketcher.Constraint("Symmetric", 7, 2, 31, 2, -1, 1),
    Sketcher.Constraint("Symmetric", 8, 2, 32, 2, -1, 1),
    Sketcher.Constraint("Symmetric", 9, 2, 33, 2, -1, 1),
    Sketcher.Constraint("Symmetric", 10, 2, 34, 2, -1, 1),
    Sketcher.Constraint("Symmetric", 11, 2, 35, 2, -1, 1),
    Sketcher.Constraint("Symmetric", 12, 2, 36, 2, -1, 1),
    Sketcher.Constraint("Symmetric", 13, 2, 37, 2, -1, 1),
    Sketcher.Constraint("Symmetric", 14, 2, 38, 2, -1, 1),
    Sketcher.Constraint("Symmetric", 15, 2, 39, 2, -1, 1),
    Sketcher.Constraint("Symmetric", 16, 2, 40, 2, -1, 1),
    Sketcher.Constraint("Symmetric", 17, 2, 41, 2, -1, 1),
    Sketcher.Constraint("Symmetric", 18, 2, 42, 2, -1, 1),
    Sketcher.Constraint("Symmetric", 19, 2, 43, 2, -1, 1),
    Sketcher.Constraint("Symmetric", 20, 2, 44, 2, -1, 1),
    Sketcher.Constraint("Symmetric", 21, 2, 45, 2, -1, 1),
    Sketcher.Constraint("Symmetric", 22, 2, 46, 2, -1, 1),
    Sketcher.Constraint("Symmetric", 23, 2, 47, 2, -1, 1),
    Sketcher.Constraint("Perpendicular", 0, 12),
    Sketcher.Constraint("Perpendicular", 1, 13),
    Sketcher.Constraint("Perpendicular", 2, 14),
    Sketcher.Constraint("Perpendicular", 3, 15),
    Sketcher.Constraint("Perpendicular", 4, 16),
    Sketcher.Constraint("Perpendicular", 5, 17),
    Sketcher.Constraint("Perpendicular", 6, 18),
    Sketcher.Constraint("Perpendicular", 7, 19),
    Sketcher.Constraint("Perpendicular", 8, 20),
    Sketcher.Constraint("Perpendicular", 9, 21),
    Sketcher.Constraint("Perpendicular", 10, 22),
    Sketcher.Constraint("Perpendicular", 11, 23),
    Sketcher.Constraint("Equal", 0, 3),
    Sketcher.Constraint("Equal", 1, 4),
    Sketcher.Constraint("Equal", 2, 5),
    Sketcher.Constraint("Equal", 3, 6),
    Sketcher.Constraint("Equal", 4, 7),
    Sketcher.Constraint("Equal", 5, 8),
    Sketcher.Constraint("Equal", 6, 9),
    Sketcher.Constraint("Equal", 7, 10),
    Sketcher.Constraint("Equal", 8, 11),
    Sketcher.Constraint("Equal", 9, 12),
    Sketcher.Constraint("Equal", 12, 15),
    Sketcher.Constraint("Equal", 15, 18),
    Sketcher.Constraint("Equal", 18, 21),
    Sketcher.Constraint("Distance", 1, Q("2.5 mm")),
    Sketcher.Constraint("Distance", 2, Q("2.8 mm")),
    Sketcher.Constraint("DistanceY", 0, 2, 2, 2, Q("2.5 mm")),
    Sketcher.Constraint("DistanceX", 5, 2, 4, 2, Q("1.337999 mm")),
    Sketcher.Constraint("DistanceX", 3, 2, 0, 2, Q("4.501401 mm")),
    Sketcher.Constraint("DistanceX", 3, 2, 7, 2, Q("0.118899 mm")),
    Sketcher.Constraint("DistanceY", 3, 2, 7, 2, Q("5.5448 mm")),
    Sketcher.Constraint("DistanceY", 9, 2, 14, 2, Q("6.014099 mm")),
    Sketcher.Constraint("DistanceY", 12, 2, 15, 2, Q("4.501401 mm")),
    Sketcher.Constraint("DistanceX", 15, 2, 19, 2, Q("5.5448 mm")),
    Sketcher.Constraint("DistanceY", 19, 2, 15, 2, Q("0.118899 mm")),
    Sketcher.Constraint("DistanceX", 21, 2, 26, 2, Q("6.014099 mm")),
    Sketcher.Constraint("Distance", 0, Q("2.508861 mm")),
    Sketcher.Constraint("DistanceX", 1, 2, -1, 1, Q("8.931959 mm")),
    Sketcher.Constraint("DistanceY", 5, 2, -1, 1, Q("6.386571 mm")),
    Sketcher.Constraint("DistanceY", 8, 2, -1, 1, Q("0.286419 mm")),
    Sketcher.Constraint("DistanceX", 10, 2, -1, 1, Q("15.682422 mm")),
    Sketcher.Constraint("DistanceY", -1, 1, 10, 2, Q("3.172011 mm")),
    Sketcher.Constraint("DistanceX", 11, 2, -1, 1, Q("14.889312 mm")),
    Sketcher.Constraint("DistanceX", 17, 2, -1, 1, Q("6.386571 mm")),
    Sketcher.Constraint("DistanceY", -1, 1, 22, 2, Q("15.682422 mm")),
    Sketcher.Constraint("DistanceY", 2, 2, 4, 2, Q("2.668228 mm")),
    Sketcher.Constraint("DistanceX", 9, 2, 12, 2, Q("3.265208 mm")),
])
sketch14.setExpression("Constraints[97]", "Params.sketch14_length")
sketch14.setExpression("Constraints[98]", "Params.sketch14_length2")
pad8 = doc.addObject("PartDesign::Pad", "Pad007")
body.addObject(pad8)
pad8.Profile = sketch14
pad8.setExpression("Length", "Params.pad8_length")
pad8.Reversed = True

doc.recompute()
